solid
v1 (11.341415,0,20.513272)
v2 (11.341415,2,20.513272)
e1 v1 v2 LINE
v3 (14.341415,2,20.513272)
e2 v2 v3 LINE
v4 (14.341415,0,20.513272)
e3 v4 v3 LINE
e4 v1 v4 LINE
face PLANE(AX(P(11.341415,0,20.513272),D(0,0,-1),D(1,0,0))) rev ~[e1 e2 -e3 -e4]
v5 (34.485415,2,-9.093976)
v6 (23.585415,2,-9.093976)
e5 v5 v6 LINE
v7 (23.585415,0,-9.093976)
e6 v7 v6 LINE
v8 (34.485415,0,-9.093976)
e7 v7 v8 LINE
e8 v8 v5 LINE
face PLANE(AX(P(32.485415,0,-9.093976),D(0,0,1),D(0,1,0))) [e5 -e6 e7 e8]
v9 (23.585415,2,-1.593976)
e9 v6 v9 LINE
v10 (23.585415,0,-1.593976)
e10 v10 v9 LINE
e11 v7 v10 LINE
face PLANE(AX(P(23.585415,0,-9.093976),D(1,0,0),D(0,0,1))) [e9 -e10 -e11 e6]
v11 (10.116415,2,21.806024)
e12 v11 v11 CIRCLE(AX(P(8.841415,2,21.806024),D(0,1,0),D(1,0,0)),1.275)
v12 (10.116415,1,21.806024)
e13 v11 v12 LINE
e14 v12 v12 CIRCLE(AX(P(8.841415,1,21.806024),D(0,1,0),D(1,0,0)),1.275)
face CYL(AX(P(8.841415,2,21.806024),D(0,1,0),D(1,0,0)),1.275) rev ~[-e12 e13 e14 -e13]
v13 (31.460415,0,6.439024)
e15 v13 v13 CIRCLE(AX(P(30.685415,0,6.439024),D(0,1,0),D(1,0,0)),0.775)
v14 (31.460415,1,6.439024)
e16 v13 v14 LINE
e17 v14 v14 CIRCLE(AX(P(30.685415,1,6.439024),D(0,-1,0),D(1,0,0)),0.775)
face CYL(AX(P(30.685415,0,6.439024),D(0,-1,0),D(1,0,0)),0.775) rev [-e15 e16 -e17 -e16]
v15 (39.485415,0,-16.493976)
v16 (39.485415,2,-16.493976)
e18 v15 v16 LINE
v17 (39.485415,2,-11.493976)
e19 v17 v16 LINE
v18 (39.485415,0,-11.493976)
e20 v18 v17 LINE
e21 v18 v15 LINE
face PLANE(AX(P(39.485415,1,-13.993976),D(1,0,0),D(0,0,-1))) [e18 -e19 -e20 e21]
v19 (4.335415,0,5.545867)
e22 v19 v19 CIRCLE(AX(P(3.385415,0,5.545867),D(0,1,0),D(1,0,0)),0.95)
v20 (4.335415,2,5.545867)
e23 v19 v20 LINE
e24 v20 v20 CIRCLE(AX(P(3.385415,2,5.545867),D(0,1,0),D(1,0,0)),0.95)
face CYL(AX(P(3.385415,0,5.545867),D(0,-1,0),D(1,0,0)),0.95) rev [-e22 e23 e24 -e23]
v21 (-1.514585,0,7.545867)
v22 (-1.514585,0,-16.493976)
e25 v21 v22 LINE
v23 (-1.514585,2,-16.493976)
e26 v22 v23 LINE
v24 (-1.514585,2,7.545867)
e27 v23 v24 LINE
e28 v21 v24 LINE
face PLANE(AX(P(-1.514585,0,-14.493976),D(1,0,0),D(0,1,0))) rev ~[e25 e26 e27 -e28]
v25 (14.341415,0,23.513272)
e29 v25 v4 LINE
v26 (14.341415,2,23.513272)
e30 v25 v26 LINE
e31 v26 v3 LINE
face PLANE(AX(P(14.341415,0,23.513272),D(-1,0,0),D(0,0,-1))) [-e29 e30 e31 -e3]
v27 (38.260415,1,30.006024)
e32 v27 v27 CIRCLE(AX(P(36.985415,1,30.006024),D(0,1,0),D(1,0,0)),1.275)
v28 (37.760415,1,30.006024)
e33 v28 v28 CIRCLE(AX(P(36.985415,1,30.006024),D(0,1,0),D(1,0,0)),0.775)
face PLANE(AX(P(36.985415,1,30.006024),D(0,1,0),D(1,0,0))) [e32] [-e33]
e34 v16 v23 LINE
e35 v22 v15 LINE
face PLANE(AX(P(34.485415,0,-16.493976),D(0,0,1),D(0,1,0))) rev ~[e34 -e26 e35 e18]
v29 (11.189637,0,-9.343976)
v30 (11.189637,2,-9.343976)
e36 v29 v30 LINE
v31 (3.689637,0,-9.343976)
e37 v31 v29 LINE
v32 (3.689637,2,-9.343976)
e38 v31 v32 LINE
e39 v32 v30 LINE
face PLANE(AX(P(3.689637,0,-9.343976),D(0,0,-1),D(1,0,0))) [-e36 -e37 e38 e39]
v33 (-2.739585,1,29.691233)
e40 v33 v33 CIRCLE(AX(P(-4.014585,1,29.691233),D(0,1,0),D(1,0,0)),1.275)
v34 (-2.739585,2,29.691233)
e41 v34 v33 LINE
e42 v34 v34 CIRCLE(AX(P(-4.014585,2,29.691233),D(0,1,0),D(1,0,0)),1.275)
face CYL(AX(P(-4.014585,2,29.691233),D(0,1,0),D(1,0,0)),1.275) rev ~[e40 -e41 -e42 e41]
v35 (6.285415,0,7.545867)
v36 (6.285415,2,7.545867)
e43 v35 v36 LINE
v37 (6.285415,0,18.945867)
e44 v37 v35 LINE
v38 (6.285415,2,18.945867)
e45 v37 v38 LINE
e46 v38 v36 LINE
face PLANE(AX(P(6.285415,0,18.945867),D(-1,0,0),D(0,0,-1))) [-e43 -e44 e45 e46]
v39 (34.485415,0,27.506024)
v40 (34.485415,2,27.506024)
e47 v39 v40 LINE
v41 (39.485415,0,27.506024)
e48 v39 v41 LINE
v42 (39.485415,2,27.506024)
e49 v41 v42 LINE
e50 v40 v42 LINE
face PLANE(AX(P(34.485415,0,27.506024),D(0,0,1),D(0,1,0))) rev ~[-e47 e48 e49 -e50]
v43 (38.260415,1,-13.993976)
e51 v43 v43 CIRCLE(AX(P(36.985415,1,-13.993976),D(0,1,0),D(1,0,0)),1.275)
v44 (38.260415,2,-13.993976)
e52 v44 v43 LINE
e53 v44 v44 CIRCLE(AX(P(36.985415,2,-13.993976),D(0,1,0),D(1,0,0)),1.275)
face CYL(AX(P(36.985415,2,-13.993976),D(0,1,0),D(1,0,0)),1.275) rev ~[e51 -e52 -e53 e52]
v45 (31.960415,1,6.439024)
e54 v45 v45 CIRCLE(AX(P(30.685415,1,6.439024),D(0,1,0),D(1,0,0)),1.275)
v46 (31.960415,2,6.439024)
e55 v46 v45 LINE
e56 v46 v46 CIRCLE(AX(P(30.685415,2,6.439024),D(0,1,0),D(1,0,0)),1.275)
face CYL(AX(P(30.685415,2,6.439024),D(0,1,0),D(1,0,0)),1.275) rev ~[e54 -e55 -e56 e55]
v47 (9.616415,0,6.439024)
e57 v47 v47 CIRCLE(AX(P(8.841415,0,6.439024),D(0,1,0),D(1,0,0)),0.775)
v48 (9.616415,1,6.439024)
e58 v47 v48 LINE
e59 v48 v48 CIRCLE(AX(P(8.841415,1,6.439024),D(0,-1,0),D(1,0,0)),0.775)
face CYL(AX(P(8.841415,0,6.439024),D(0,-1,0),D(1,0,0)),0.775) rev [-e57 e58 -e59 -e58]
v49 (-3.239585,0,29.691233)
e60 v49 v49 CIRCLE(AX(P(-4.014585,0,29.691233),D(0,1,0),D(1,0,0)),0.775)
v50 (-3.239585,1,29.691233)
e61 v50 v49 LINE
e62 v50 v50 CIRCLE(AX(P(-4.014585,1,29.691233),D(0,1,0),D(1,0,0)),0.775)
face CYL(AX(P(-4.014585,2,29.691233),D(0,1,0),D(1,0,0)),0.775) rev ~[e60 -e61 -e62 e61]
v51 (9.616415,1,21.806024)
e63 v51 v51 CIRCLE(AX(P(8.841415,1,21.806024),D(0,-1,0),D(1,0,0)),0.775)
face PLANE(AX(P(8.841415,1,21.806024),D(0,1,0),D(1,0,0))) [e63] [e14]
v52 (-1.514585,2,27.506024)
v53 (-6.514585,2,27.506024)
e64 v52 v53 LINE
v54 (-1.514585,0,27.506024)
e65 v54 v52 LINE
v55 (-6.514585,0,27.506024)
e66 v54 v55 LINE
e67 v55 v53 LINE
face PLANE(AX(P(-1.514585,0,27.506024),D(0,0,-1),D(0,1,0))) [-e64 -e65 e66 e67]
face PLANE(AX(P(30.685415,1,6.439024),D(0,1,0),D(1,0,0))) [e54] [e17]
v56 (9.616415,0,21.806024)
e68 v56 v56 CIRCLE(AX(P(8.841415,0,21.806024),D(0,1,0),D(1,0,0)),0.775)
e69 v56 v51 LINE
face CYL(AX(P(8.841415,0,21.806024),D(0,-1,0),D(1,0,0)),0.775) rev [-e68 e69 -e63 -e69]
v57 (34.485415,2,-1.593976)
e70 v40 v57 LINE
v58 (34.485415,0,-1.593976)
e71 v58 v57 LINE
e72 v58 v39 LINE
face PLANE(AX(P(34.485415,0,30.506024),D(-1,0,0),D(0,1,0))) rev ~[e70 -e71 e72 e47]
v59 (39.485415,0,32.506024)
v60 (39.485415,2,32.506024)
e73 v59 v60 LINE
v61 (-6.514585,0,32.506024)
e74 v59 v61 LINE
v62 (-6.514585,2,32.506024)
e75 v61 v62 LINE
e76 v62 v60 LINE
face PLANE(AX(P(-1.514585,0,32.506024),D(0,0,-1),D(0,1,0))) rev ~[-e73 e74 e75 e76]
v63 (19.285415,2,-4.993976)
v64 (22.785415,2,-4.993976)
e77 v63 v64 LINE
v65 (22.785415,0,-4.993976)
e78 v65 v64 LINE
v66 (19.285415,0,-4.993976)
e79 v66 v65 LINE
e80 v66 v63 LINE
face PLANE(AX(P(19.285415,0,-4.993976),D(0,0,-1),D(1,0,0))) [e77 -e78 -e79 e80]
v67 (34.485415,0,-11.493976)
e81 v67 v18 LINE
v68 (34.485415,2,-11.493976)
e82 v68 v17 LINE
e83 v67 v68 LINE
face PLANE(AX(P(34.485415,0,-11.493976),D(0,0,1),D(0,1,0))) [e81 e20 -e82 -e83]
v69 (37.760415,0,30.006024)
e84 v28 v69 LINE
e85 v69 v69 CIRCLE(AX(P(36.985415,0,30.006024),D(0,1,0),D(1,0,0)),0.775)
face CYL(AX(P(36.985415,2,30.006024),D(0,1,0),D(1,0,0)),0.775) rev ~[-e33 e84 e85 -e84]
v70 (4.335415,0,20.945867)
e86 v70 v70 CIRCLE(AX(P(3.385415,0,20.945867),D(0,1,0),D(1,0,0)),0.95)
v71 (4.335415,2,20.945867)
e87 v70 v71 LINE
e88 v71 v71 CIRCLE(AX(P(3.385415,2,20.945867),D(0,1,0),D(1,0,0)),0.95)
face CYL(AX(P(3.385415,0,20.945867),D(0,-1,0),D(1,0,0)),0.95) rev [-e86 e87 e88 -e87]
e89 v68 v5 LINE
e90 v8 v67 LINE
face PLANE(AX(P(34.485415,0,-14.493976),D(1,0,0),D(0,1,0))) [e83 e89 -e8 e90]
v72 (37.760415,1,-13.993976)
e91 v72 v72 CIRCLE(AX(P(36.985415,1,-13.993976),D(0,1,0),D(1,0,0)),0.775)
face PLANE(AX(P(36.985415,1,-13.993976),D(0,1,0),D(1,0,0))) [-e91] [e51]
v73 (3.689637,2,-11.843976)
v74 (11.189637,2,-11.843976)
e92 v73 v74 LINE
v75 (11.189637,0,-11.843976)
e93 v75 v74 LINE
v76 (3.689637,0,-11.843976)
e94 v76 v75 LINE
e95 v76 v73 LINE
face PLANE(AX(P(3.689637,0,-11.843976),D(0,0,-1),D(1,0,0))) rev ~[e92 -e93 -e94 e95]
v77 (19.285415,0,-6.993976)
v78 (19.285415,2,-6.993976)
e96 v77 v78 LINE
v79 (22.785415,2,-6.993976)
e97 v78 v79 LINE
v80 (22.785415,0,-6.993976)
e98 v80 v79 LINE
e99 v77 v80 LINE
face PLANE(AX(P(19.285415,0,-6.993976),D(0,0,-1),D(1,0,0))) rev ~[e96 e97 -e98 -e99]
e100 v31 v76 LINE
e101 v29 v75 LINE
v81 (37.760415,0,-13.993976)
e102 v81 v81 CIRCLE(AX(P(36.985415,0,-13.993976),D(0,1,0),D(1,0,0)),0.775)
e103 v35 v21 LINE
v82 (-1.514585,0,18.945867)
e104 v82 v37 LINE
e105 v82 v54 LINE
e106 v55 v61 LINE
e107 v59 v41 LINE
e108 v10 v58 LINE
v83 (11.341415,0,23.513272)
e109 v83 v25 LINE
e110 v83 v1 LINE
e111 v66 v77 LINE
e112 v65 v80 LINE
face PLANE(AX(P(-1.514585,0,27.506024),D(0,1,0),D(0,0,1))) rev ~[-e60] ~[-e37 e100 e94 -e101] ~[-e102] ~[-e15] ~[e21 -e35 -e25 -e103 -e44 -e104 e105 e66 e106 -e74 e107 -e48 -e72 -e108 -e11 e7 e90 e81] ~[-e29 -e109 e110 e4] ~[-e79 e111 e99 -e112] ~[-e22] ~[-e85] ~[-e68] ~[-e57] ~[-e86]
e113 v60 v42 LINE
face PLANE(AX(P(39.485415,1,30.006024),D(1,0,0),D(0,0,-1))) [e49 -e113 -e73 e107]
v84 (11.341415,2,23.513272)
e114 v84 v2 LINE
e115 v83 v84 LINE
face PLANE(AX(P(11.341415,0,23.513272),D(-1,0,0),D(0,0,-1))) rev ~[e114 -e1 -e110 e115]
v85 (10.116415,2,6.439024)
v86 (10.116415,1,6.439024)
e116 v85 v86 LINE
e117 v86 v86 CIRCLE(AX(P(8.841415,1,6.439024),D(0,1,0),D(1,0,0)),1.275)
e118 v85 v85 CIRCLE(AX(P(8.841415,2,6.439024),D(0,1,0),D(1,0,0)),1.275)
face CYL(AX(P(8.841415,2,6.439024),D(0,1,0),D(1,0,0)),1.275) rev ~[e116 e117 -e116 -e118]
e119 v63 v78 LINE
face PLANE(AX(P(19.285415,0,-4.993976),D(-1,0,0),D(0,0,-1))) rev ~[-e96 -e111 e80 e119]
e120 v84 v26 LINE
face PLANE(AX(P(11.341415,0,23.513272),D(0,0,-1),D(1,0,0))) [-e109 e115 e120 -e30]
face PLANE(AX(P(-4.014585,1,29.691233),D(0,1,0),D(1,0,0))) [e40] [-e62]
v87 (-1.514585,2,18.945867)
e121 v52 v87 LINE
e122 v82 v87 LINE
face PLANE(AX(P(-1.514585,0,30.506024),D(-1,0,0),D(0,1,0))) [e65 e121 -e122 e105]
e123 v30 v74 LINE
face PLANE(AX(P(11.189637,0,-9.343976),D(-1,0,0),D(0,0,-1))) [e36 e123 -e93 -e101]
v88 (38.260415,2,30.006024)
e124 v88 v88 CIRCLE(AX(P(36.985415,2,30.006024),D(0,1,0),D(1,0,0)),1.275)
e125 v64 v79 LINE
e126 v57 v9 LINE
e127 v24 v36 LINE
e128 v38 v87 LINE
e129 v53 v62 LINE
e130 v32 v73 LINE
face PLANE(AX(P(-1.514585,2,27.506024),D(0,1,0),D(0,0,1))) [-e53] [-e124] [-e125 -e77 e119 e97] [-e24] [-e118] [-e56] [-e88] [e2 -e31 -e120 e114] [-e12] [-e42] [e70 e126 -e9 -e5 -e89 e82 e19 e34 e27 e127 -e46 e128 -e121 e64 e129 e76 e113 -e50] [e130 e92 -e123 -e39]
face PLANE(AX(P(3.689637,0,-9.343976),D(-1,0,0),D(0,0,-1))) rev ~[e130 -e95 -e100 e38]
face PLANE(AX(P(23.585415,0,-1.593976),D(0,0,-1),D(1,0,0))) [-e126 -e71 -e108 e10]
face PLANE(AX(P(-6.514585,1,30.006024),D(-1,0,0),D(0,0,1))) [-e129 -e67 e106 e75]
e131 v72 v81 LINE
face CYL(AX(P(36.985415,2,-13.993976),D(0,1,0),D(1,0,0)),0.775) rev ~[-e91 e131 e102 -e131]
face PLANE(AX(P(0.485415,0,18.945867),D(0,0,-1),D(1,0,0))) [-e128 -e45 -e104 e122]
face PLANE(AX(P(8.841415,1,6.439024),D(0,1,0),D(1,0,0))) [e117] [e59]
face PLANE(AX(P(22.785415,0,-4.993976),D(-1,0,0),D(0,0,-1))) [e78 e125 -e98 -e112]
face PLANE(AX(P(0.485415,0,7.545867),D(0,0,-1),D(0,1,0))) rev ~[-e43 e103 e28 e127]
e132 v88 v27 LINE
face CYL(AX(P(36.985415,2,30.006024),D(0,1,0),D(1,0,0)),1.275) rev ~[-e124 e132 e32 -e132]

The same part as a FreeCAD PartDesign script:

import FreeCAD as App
import Part
import Sketcher

V = App.Vector

doc = App.newDocument("Part")
body = doc.addObject("PartDesign::Body", "Body")

# Sketch on XZ plane
sketch1 = doc.addObject("Sketcher::SketchObject", "Sketch")
body.addObject(sketch1)
sketch1.AttachmentSupport = (doc.XZ_Plane, [""])
sketch1.MapMode = "FlatFace"
sketch1.addGeometry([
    Part.LineSegment(V(23.585415, -9.093976, 0), V(32.485415, -9.093976, 0)),  # 0
    Part.LineSegment(V(32.485415, -9.093976, 0), V(32.485415, -14.493976, 0)),  # 1
    Part.LineSegment(V(32.485415, -14.493976, 0), V(0.485415, -14.493976, 0)),  # 2
    Part.LineSegment(V(0.485415, -14.493976, 0), V(0.485415, 7.545867, 0)),  # 3
    Part.LineSegment(V(0.485415, 7.545867, 0), V(6.285415, 7.545867, 0)),  # 4
    Part.LineSegment(V(6.285415, 7.545867, 0), V(6.285415, 18.945867, 0)),  # 5
    Part.LineSegment(V(6.285415, 18.945867, 0), V(0.485415, 18.945867, 0)),  # 6
    Part.LineSegment(V(0.485415, 18.945867, 0), V(0.485415, 30.506024, 0)),  # 7
    Part.LineSegment(V(0.485415, 30.506024, 0), V(32.485415, 30.506024, 0)),  # 8
    Part.LineSegment(V(32.485415, 30.506024, 0), V(32.485415, -1.593976, 0)),  # 9
    Part.LineSegment(V(32.485415, -1.593976, 0), V(23.585415, -1.593976, 0)),  # 10
    Part.LineSegment(V(23.585415, -1.593976, 0), V(23.585415, -9.093976, 0)),  # 11
    Part.Circle(V(30.685415, 6.439024, 0), V(0, 0, 1), 0.775),  # 12
    Part.LineSegment(V(11.341415, 23.513272, 0), V(11.341415, 20.513272, 0)),  # 13
    Part.LineSegment(V(11.341415, 20.513272, 0), V(14.341415, 20.513272, 0)),  # 14
    Part.LineSegment(V(14.341415, 20.513272, 0), V(14.341415, 23.513272, 0)),  # 15
    Part.LineSegment(V(14.341415, 23.513272, 0), V(11.341415, 23.513272, 0)),  # 16
    Part.Circle(V(8.841415, 21.806024, 0), V(0, 0, 1), 0.775),  # 17
    Part.Circle(V(3.385415, 20.945867, 0), V(0, 0, 1), 0.95),  # 18
    Part.Circle(V(8.841415, 6.439024, 0), V(0, 0, 1), 0.775),  # 19
    Part.LineSegment(V(19.285415, -4.993976, 0), V(19.285415, -6.993976, 0)),  # 20
    Part.LineSegment(V(19.285415, -6.993976, 0), V(22.785415, -6.993976, 0)),  # 21
    Part.LineSegment(V(22.785415, -6.993976, 0), V(22.785415, -4.993976, 0)),  # 22
    Part.LineSegment(V(22.785415, -4.993976, 0), V(19.285415, -4.993976, 0)),  # 23
    Part.Circle(V(3.385415, 5.545867, 0), V(0, 0, 1), 0.95),  # 24
    Part.LineSegment(V(3.689637, -9.343976, 0), V(3.689637, -11.843976, 0)),  # 25
    Part.LineSegment(V(3.689637, -11.843976, 0), V(11.189637, -11.843976, 0)),  # 26
    Part.LineSegment(V(11.189637, -11.843976, 0), V(11.189637, -9.343976, 0)),  # 27
    Part.LineSegment(V(11.189637, -9.343976, 0), V(3.689637, -9.343976, 0)),  # 28
], False)
sketch1.addConstraint([
    Sketcher.Constraint("Coincident", 0, 2, 1, 1),
    Sketcher.Constraint("Coincident", 1, 2, 2, 1),
    Sketcher.Constraint("Coincident", 2, 2, 3, 1),
    Sketcher.Constraint("Coincident", 3, 2, 4, 1),
    Sketcher.Constraint("Coincident", 4, 2, 5, 1),
    Sketcher.Constraint("Coincident", 5, 2, 6, 1),
    Sketcher.Constraint("Coincident", 6, 2, 7, 1),
    Sketcher.Constraint("Coincident", 7, 2, 8, 1),
    Sketcher.Constraint("Coincident", 8, 2, 9, 1),
    Sketcher.Constraint("Coincident", 9, 2, 10, 1),
    Sketcher.Constraint("Coincident", 10, 2, 11, 1),
    Sketcher.Constraint("Coincident", 11, 2, 0, 1),
    Sketcher.Constraint("Coincident", 13, 2, 14, 1),
    Sketcher.Constraint("Coincident", 14, 2, 15, 1),
    Sketcher.Constraint("Coincident", 15, 2, 16, 1),
    Sketcher.Constraint("Coincident", 16, 2, 13, 1),
    Sketcher.Constraint("Coincident", 20, 2, 21, 1),
    Sketcher.Constraint("Coincident", 21, 2, 22, 1),
    Sketcher.Constraint("Coincident", 22, 2, 23, 1),
    Sketcher.Constraint("Coincident", 23, 2, 20, 1),
    Sketcher.Constraint("Coincident", 25, 2, 26, 1),
    Sketcher.Constraint("Coincident", 26, 2, 27, 1),
    Sketcher.Constraint("Coincident", 27, 2, 28, 1),
    Sketcher.Constraint("Coincident", 28, 2, 25, 1),
    Sketcher.Constraint("Horizontal", 0),
    Sketcher.Constraint("Vertical", 1),
    Sketcher.Constraint("Horizontal", 2),
    Sketcher.Constraint("Vertical", 3),
    Sketcher.Constraint("Horizontal", 4),
    Sketcher.Constraint("Vertical", 5),
    Sketcher.Constraint("Horizontal", 6),
    Sketcher.Constraint("Vertical", 7),
    Sketcher.Constraint("Horizontal", 8),
    Sketcher.Constraint("Vertical", 9),
    Sketcher.Constraint("Horizontal", 10),
    Sketcher.Constraint("Vertical", 11),
    Sketcher.Constraint("Vertical", 13),
    Sketcher.Constraint("Horizontal", 14),
    Sketcher.Constraint("Vertical", 15),
    Sketcher.Constraint("Horizontal", 16),
    Sketcher.Constraint("Vertical", 20),
    Sketcher.Constraint("Horizontal", 21),
    Sketcher.Constraint("Vertical", 22),
    Sketcher.Constraint("Horizontal", 23),
    Sketcher.Constraint("Vertical", 25),
    Sketcher.Constraint("Horizontal", 26),
    Sketcher.Constraint("Vertical", 27),
    Sketcher.Constraint("Horizontal", 28),
    Sketcher.Constraint("Equal", 12, 17),
    Sketcher.Constraint("Equal", 17, 19),
    Sketcher.Constraint("Equal", 18, 24),
    Sketcher.Constraint("Horizontal", 12, 3, 19, 3),
    Sketcher.Constraint("Vertical", 17, 3, 19, 3),
    Sketcher.Constraint("Vertical", 18, 3, 24, 3),
    Sketcher.Constraint("Vertical", 3, 2, 6, 2),
    Sketcher.Constraint("Vertical", 1, 2, 8, 2),
    Sketcher.Constraint("Equal", 28, 11),
    Sketcher.Constraint("Equal", 16, 13),
    Sketcher.Constraint("Diameter", 18, 1.9),
    Sketcher.Constraint("Diameter", 12, 1.55),
    Sketcher.Constraint("DistanceX", 2, 2, 2, 1, 32.0),
    Sketcher.Constraint("DistanceX", 14, 1, 14, 2, 3.0),
    Sketcher.Constraint("DistanceY", 20, 2, 20, 1, 2.0),
    Sketcher.Constraint("DistanceX", 0, 1, 0, 2, 8.9),
    Sketcher.Constraint("DistanceX", 4, 1, 4, 2, 5.8),
    Sketcher.Constraint("DistanceX", 21, 1, 21, 2, 3.5),
    Sketcher.Constraint("DistanceX", 26, 1, 26, 2, 7.5),
    Sketcher.Constraint("DistanceY", 1, 2, 1, 1, 5.4),
    Sketcher.Constraint("DistanceY", 5, 1, 5, 2, 11.4),
    Sketcher.Constraint("DistanceY", 9, 2, 9, 1, 32.1),
    Sketcher.Constraint("DistanceY", 25, 2, 25, 1, 2.5),
    Sketcher.Constraint("DistanceY", 24, 3, 3, 2, 2.0),
    Sketcher.Constraint("DistanceY", 5, 2, 18, 3, 2.0),
    Sketcher.Constraint("DistanceX", 18, 3, 12, 3, 27.3),
    Sketcher.Constraint("DistanceX", 12, 3, 0, 2, 1.8),
    Sketcher.Constraint("DistanceY", 0, 2, 17, 3, 30.9),
    Sketcher.Constraint("DistanceX", 17, 3, 13, 2, 2.5),
    Sketcher.Constraint("DistanceX", 20, 2, 11, 2, 4.3),
    Sketcher.Constraint("DistanceY", 11, 2, 20, 2, 2.1),
    Sketcher.Constraint("DistanceY", 2, 2, 25, 2, 2.65),
    Sketcher.Constraint("DistanceX", 17, 3, 12, 3, 21.844),
    Sketcher.Constraint("DistanceY", 12, 3, 17, 3, 15.367),
    Sketcher.Constraint("DistanceY", 3, 1, 3, 2, 22.039843),
    Sketcher.Constraint("DistanceX", -1, 1, 12, 3, 30.685415),
    Sketcher.Constraint("DistanceY", -1, 1, 12, 3, 6.439024),
    Sketcher.Constraint("DistanceY", -1, 1, 13, 2, 20.513272),
    Sketcher.Constraint("DistanceX", -1, 1, 25, 2, 3.689637),
])
pad1 = doc.addObject("PartDesign::Pad", "Pad")
body.addObject(pad1)
pad1.Profile = sketch1
pad1.Length = 2
pad1.Reversed = True

# Sketch on XZ plane
sketch2 = doc.addObject("Sketcher::SketchObject", "Sketch001")
body.addObject(sketch2)
sketch2.AttachmentSupport = (doc.XZ_Plane, [""])
sketch2.MapMode = "FlatFace"
sketch2.AttachmentOffset = App.Placement(V(0, 0, -2), App.Rotation())
sketch2.addGeometry([
    Part.Circle(V(8.841415, 6.439024, 0), V(0, 0, 1), 1.275),
    Part.Circle(V(30.685415, 6.439024, 0), V(0, 0, 1), 1.275),
    Part.Circle(V(8.841415, 21.806024, 0), V(0, 0, 1), 1.275),
], False)
sketch2.addConstraint([
    Sketcher.Constraint("Equal", 0, 1),
    Sketcher.Constraint("Equal", 1, 2),
    Sketcher.Constraint("Horizontal", 0, 3, 1, 3),
    Sketcher.Constraint("Vertical", 0, 3, 2, 3),
    Sketcher.Constraint("Diameter", 0, 2.55),
    Sketcher.Constraint("DistanceX", 0, 3, 1, 3, 21.844),
    Sketcher.Constraint("DistanceY", 0, 3, 2, 3, 15.367),
    Sketcher.Constraint("DistanceX", -1, 1, 0, 3, 8.841415),
    Sketcher.Constraint("DistanceY", -1, 1, 0, 3, 6.439024),
])
pocket1 = doc.addObject("PartDesign::Pocket", "Pocket")
body.addObject(pocket1)
pocket1.Profile = sketch2
pocket1.Length = 1
pocket1.Reversed = True

# Sketch on YZ plane
sketch3 = doc.addObject("Sketcher::SketchObject", "Sketch002")
body.addObject(sketch3)
sketch3.AttachmentSupport = (doc.YZ_Plane, [""])
sketch3.MapMode = "FlatFace"
sketch3.AttachmentOffset = App.Placement(V(0, 0, 0.485415), App.Rotation())
sketch3.addGeometry([
    Part.LineSegment(V(2, -14.493976, 0), V(0, -14.493976, 0)),  # 0
    Part.LineSegment(V(0, -14.493976, 0), V(0, 7.545867, 0)),  # 1
    Part.LineSegment(V(0, 7.545867, 0), V(2, 7.545867, 0)),  # 2
    Part.LineSegment(V(2, 7.545867, 0), V(2, -14.493976, 0)),  # 3
    Part.LineSegment(V(2, 18.945867, 0), V(0, 18.945867, 0)),  # 4
    Part.LineSegment(V(0, 18.945867, 0), V(0, 30.506024, 0)),  # 5
    Part.LineSegment(V(0, 30.506024, 0), V(2, 30.506024, 0)),  # 6
    Part.LineSegment(V(2, 30.506024, 0), V(2, 18.945867, 0)),  # 7
], False)
sketch3.addConstraint([
    Sketcher.Constraint("Coincident", 0, 2, 1, 1),
    Sketcher.Constraint("Coincident", 1, 2, 2, 1),
    Sketcher.Constraint("Coincident", 2, 2, 3, 1),
    Sketcher.Constraint("Coincident", 3, 2, 0, 1),
    Sketcher.Constraint("Coincident", 4, 2, 5, 1),
    Sketcher.Constraint("Coincident", 5, 2, 6, 1),
    Sketcher.Constraint("Coincident", 6, 2, 7, 1),
    Sketcher.Constraint("Coincident", 7, 2, 4, 1),
    Sketcher.Constraint("Horizontal", 0),
    Sketcher.Constraint("Vertical", 1),
    Sketcher.Constraint("Horizontal", 2),
    Sketcher.Constraint("Vertical", 3),
    Sketcher.Constraint("Horizontal", 4),
    Sketcher.Constraint("Vertical", 5),
    Sketcher.Constraint("Horizontal", 6),
    Sketcher.Constraint("Vertical", 7),
    Sketcher.Constraint("PointOnObject", 0, 2, -2),
    Sketcher.Constraint("PointOnObject", 4, 2, -2),
    Sketcher.Constraint("Vertical", 3, 2, 6, 2),
    Sketcher.Constraint("DistanceX", 0, 2, 0, 1, 2.0),
    Sketcher.Constraint("DistanceY", 0, 2, 5, 2, 45.0),
    Sketcher.Constraint("DistanceY", 1, 2, 4, 2, 11.4),
    Sketcher.Constraint("DistanceY", 1, 1, 1, 2, 22.039843),
    Sketcher.Constraint("DistanceY", 0, 2, -1, 1, 14.493976),
])
pad2 = doc.addObject("PartDesign::Pad", "Pad001")
body.addObject(pad2)
pad2.Profile = sketch3
pad2.Length = 2
pad2.Reversed = True

# Sketch on YZ plane
sketch4 = doc.addObject("Sketcher::SketchObject", "Sketch003")
body.addObject(sketch4)
sketch4.AttachmentSupport = (doc.YZ_Plane, [""])
sketch4.MapMode = "FlatFace"
sketch4.AttachmentOffset = App.Placement(V(0, 0, 32.485415), App.Rotation())
sketch4.addGeometry([
    Part.LineSegment(V(2, -9.093976, 0), V(0, -9.093976, 0)),  # 0
    Part.LineSegment(V(0, -9.093976, 0), V(0, -14.493976, 0)),  # 1
    Part.LineSegment(V(0, -14.493976, 0), V(2, -14.493976, 0)),  # 2
    Part.LineSegment(V(2, -14.493976, 0), V(2, -9.093976, 0)),  # 3
    Part.LineSegment(V(2, 30.506024, 0), V(0, 30.506024, 0)),  # 4
    Part.LineSegment(V(0, 30.506024, 0), V(0, -1.593976, 0)),  # 5
    Part.LineSegment(V(0, -1.593976, 0), V(2, -1.593976, 0)),  # 6
    Part.LineSegment(V(2, -1.593976, 0), V(2, 30.506024, 0)),  # 7
], False)
sketch4.addConstraint([
    Sketcher.Constraint("Coincident", 0, 2, 1, 1),
    Sketcher.Constraint("Coincident", 1, 2, 2, 1),
    Sketcher.Constraint("Coincident", 2, 2, 3, 1),
    Sketcher.Constraint("Coincident", 3, 2, 0, 1),
    Sketcher.Constraint("Coincident", 4, 2, 5, 1),
    Sketcher.Constraint("Coincident", 5, 2, 6, 1),
    Sketcher.Constraint("Coincident", 6, 2, 7, 1),
    Sketcher.Constraint("Coincident", 7, 2, 4, 1),
    Sketcher.Constraint("Horizontal", 0),
    Sketcher.Constraint("Vertical", 1),
    Sketcher.Constraint("Horizontal", 2),
    Sketcher.Constraint("Vertical", 3),
    Sketcher.Constraint("Horizontal", 4),
    Sketcher.Constraint("Vertical", 5),
    Sketcher.Constraint("Horizontal", 6),
    Sketcher.Constraint("Vertical", 7),
    Sketcher.Constraint("PointOnObject", 0, 2, -2),
    Sketcher.Constraint("PointOnObject", 4, 2, -2),
    Sketcher.Constraint("Vertical", 3, 2, 6, 2),
    Sketcher.Constraint("DistanceX", 0, 2, 0, 1, 2.0),
    Sketcher.Constraint("DistanceY", 1, 2, 1, 1, 5.4),
    Sketcher.Constraint("DistanceY", 5, 2, 5, 1, 32.1),
    Sketcher.Constraint("DistanceY", 1, 2, 4, 2, 45.0),
    Sketcher.Constraint("DistanceY", 0, 2, -1, 1, 9.093976),
])
pad3 = doc.addObject("PartDesign::Pad", "Pad002")
body.addObject(pad3)
pad3.Profile = sketch4
pad3.Length = 2

# Sketch on XY plane
sketch5 = doc.addObject("Sketcher::SketchObject", "Sketch004")
body.addObject(sketch5)
sketch5.AttachmentSupport = (doc.XY_Plane, [""])
sketch5.MapMode = "FlatFace"
sketch5.AttachmentOffset = App.Placement(V(0, 0, -14.493976), App.Rotation())
sketch5.addGeometry([
    Part.LineSegment(V(34.485415, 2, 0), V(34.485415, 0, 0)),
    Part.LineSegment(V(34.485415, 0, 0), V(-1.514585, 0, 0)),
    Part.LineSegment(V(-1.514585, 0, 0), V(-1.514585, 2, 0)),
    Part.LineSegment(V(-1.514585, 2, 0), V(34.485415, 2, 0)),
], False)
sketch5.addConstraint([
    Sketcher.Constraint("Coincident", 0, 2, 1, 1),
    Sketcher.Constraint("Coincident", 1, 2, 2, 1),
    Sketcher.Constraint("Coincident", 2, 2, 3, 1),
    Sketcher.Constraint("Coincident", 3, 2, 0, 1),
    Sketcher.Constraint("Vertical", 0),
    Sketcher.Constraint("Horizontal", 1),
    Sketcher.Constraint("Vertical", 2),
    Sketcher.Constraint("Horizontal", 3),
    Sketcher.Constraint("PointOnObject", 0, 2, -1),
    Sketcher.Constraint("DistanceX", 1, 2, 1, 1, 36.0),
    Sketcher.Constraint("DistanceY", 0, 2, 0, 1, 2.0),
    Sketcher.Constraint("DistanceX", -1, 1, 0, 2, 34.485415),
])
pad4 = doc.addObject("PartDesign::Pad", "Pad003")
body.addObject(pad4)
pad4.Profile = sketch5
pad4.Length = 2
pad4.Reversed = True

# Sketch on XY plane
sketch6 = doc.addObject("Sketcher::SketchObject", "Sketch005")
body.addObject(sketch6)
sketch6.AttachmentSupport = (doc.XY_Plane, [""])
sketch6.MapMode = "FlatFace"
sketch6.AttachmentOffset = App.Placement(V(0, 0, 30.506024), App.Rotation())
sketch6.addGeometry([
    Part.LineSegment(V(-1.514585, 2, 0), V(-1.514585, 0, 0)),
    Part.LineSegment(V(-1.514585, 0, 0), V(34.485415, 0, 0)),
    Part.LineSegment(V(34.485415, 0, 0), V(34.485415, 2, 0)),
    Part.LineSegment(V(34.485415, 2, 0), V(-1.514585, 2, 0)),
], False)
sketch6.addConstraint([
    Sketcher.Constraint("Coincident", 0, 2, 1, 1),
    Sketcher.Constraint("Coincident", 1, 2, 2, 1),
    Sketcher.Constraint("Coincident", 2, 2, 3, 1),
    Sketcher.Constraint("Coincident", 3, 2, 0, 1),
    Sketcher.Constraint("Vertical", 0),
    Sketcher.Constraint("Horizontal", 1),
    Sketcher.Constraint("Vertical", 2),
    Sketcher.Constraint("Horizontal", 3),
    Sketcher.Constraint("PointOnObject", 0, 2, -1),
    Sketcher.Constraint("DistanceX", 1, 1, 1, 2, 36.0),
    Sketcher.Constraint("DistanceY", 0, 2, 0, 1, 2.0),
    Sketcher.Constraint("DistanceX", 0, 2, -1, 1, 1.514585),
])
pad5 = doc.addObject("PartDesign::Pad", "Pad004")
body.addObject(pad5)
pad5.Profile = sketch6
pad5.Length = 2

# Sketch on YZ plane
sketch7 = doc.addObject("Sketcher::SketchObject", "Sketch006")
body.addObject(sketch7)
sketch7.AttachmentSupport = (doc.YZ_Plane, [""])
sketch7.MapMode = "FlatFace"
sketch7.AttachmentOffset = App.Placement(V(0, 0, 34.485415), App.Rotation())
sketch7.addGeometry([
    Part.LineSegment(V(2, -11.493976, 0), V(0, -11.493976, 0)),  # 0
    Part.LineSegment(V(0, -11.493976, 0), V(0, -16.493976, 0)),  # 1
    Part.LineSegment(V(0, -16.493976, 0), V(2, -16.493976, 0)),  # 2
    Part.LineSegment(V(2, -16.493976, 0), V(2, -11.493976, 0)),  # 3
    Part.LineSegment(V(2, 32.506024, 0), V(0, 32.506024, 0)),  # 4
    Part.LineSegment(V(0, 32.506024, 0), V(0, 27.506024, 0)),  # 5
    Part.LineSegment(V(0, 27.506024, 0), V(2, 27.506024, 0)),  # 6
    Part.LineSegment(V(2, 27.506024, 0), V(2, 32.506024, 0)),  # 7
], False)
sketch7.addConstraint([
    Sketcher.Constraint("Coincident", 0, 2, 1, 1),
    Sketcher.Constraint("Coincident", 1, 2, 2, 1),
    Sketcher.Constraint("Coincident", 2, 2, 3, 1),
    Sketcher.Constraint("Coincident", 3, 2, 0, 1),
    Sketcher.Constraint("Coincident", 4, 2, 5, 1),
    Sketcher.Constraint("Coincident", 5, 2, 6, 1),
    Sketcher.Constraint("Coincident", 6, 2, 7, 1),
    Sketcher.Constraint("Coincident", 7, 2, 4, 1),
    Sketcher.Constraint("Horizontal", 0),
    Sketcher.Constraint("Vertical", 1),
    Sketcher.Constraint("Horizontal", 2),
    Sketcher.Constraint("Vertical", 3),
    Sketcher.Constraint("Horizontal", 4),
    Sketcher.Constraint("Vertical", 5),
    Sketcher.Constraint("Horizontal", 6),
    Sketcher.Constraint("Vertical", 7),
    Sketcher.Constraint("PointOnObject", 0, 2, -2),
    Sketcher.Constraint("PointOnObject", 4, 2, -2),
    Sketcher.Constraint("Vertical", 3, 2, 6, 2),
    Sketcher.Constraint("Equal", 3, 5),
    Sketcher.Constraint("DistanceX", 0, 2, 0, 1, 2.0),
    Sketcher.Constraint("DistanceY", 1, 2, 1, 1, 5.0),
    Sketcher.Constraint("DistanceY", 0, 2, 4, 2, 44.0),
    Sketcher.Constraint("DistanceY", 0, 2, -1, 1, 11.493976),
])
pad6 = doc.addObject("PartDesign::Pad", "Pad005")
body.addObject(pad6)
pad6.Profile = sketch7
pad6.Length = 5

# Sketch on YZ plane
sketch8 = doc.addObject("Sketcher::SketchObject", "Sketch007")
body.addObject(sketch8)
sketch8.AttachmentSupport = (doc.YZ_Plane, [""])
sketch8.MapMode = "FlatFace"
sketch8.AttachmentOffset = App.Placement(V(0, 0, -1.514585), App.Rotation())
sketch8.addGeometry([
    Part.LineSegment(V(2, 27.506024, 0), V(0, 27.506024, 0)),
    Part.LineSegment(V(0, 27.506024, 0), V(0, 32.506024, 0)),
    Part.LineSegment(V(0, 32.506024, 0), V(2, 32.506024, 0)),
    Part.LineSegment(V(2, 32.506024, 0), V(2, 27.506024, 0)),
], False)
sketch8.addConstraint([
    Sketcher.Constraint("Coincident", 0, 2, 1, 1),
    Sketcher.Constraint("Coincident", 1, 2, 2, 1),
    Sketcher.Constraint("Coincident", 2, 2, 3, 1),
    Sketcher.Constraint("Coincident", 3, 2, 0, 1),
    Sketcher.Constraint("Horizontal", 0),
    Sketcher.Constraint("Vertical", 1),
    Sketcher.Constraint("Horizontal", 2),
    Sketcher.Constraint("Vertical", 3),
    Sketcher.Constraint("PointOnObject", 0, 2, -2),
    Sketcher.Constraint("DistanceX", 0, 2, 0, 1, 2.0),
    Sketcher.Constraint("DistanceY", 1, 1, 1, 2, 5.0),
    Sketcher.Constraint("DistanceY", -1, 1, 0, 2, 27.506024),
])
pad7 = doc.addObject("PartDesign::Pad", "Pad006")
body.addObject(pad7)
pad7.Profile = sketch8
pad7.Length = 5
pad7.Reversed = True

# Sketch on XZ plane
sketch9 = doc.addObject("Sketcher::SketchObject", "Sketch008")
body.addObject(sketch9)
sketch9.AttachmentSupport = (doc.XZ_Plane, [""])
sketch9.MapMode = "FlatFace"
sketch9.AttachmentOffset = App.Placement(V(0, 0, -2), App.Rotation())
sketch9.addGeometry([
    Part.Circle(V(36.985415, -13.993976, 0), V(0, 0, 1), 0.775),
    Part.Circle(V(36.985415, 30.006024, 0), V(0, 0, 1), 0.775),
    Part.Circle(V(-4.014585, 29.691233, 0), V(0, 0, 1), 0.775),
], False)
sketch9.addConstraint([
    Sketcher.Constraint("Equal", 0, 1),
    Sketcher.Constraint("Equal", 1, 2),
    Sketcher.Constraint("Vertical", 0, 3, 1, 3),
    Sketcher.Constraint("Diameter", 0, 1.55),
    Sketcher.Constraint("DistanceY", 0, 3, 1, 3, 44.0),
    Sketcher.Constraint("DistanceX", 2, 3, 1, 3, 41.0),
    Sketcher.Constraint("DistanceY", 2, 3, 1, 3, 0.314791),
    Sketcher.Constraint("DistanceX", -1, 1, 0, 3, 36.985415),
    Sketcher.Constraint("DistanceY", 0, 3, -1, 1, 13.993976),
])
pocket2 = doc.addObject("PartDesign::Pocket", "Pocket001")
body.addObject(pocket2)
pocket2.Profile = sketch9
pocket2.Length = 5
pocket2.Reversed = True

# Sketch on XZ plane
sketch10 = doc.addObject("Sketcher::SketchObject", "Sketch009")
body.addObject(sketch10)
sketch10.AttachmentSupport = (doc.XZ_Plane, [""])
sketch10.MapMode = "FlatFace"
sketch10.AttachmentOffset = App.Placement(V(0, 0, -2), App.Rotation())
sketch10.addGeometry([
    Part.Circle(V(36.985415, -13.993976, 0), V(0, 0, 1), 1.275),
    Part.Circle(V(36.985415, 30.006024, 0), V(0, 0, 1), 1.275),
    Part.Circle(V(-4.014585, 29.691233, 0), V(0, 0, 1), 1.275),
], False)
sketch10.addConstraint([
    Sketcher.Constraint("Equal", 0, 1),
    Sketcher.Constraint("Equal", 1, 2),
    Sketcher.Constraint("Vertical", 0, 3, 1, 3),
    Sketcher.Constraint("Diameter", 0, 2.55),
    Sketcher.Constraint("DistanceY", 0, 3, 1, 3, 44.0),
    Sketcher.Constraint("DistanceX", 2, 3, 1, 3, 41.0),
    Sketcher.Constraint("DistanceY", 2, 3, 1, 3, 0.314791),
    Sketcher.Constraint("DistanceX", -1, 1, 0, 3, 36.985415),
    Sketcher.Constraint("DistanceY", 0, 3, -1, 1, 13.993976),
])
pocket3 = doc.addObject("PartDesign::Pocket", "Pocket002")
body.addObject(pocket3)
pocket3.Profile = sketch10
pocket3.Length = 1
pocket3.Reversed = True

doc.recompute()
